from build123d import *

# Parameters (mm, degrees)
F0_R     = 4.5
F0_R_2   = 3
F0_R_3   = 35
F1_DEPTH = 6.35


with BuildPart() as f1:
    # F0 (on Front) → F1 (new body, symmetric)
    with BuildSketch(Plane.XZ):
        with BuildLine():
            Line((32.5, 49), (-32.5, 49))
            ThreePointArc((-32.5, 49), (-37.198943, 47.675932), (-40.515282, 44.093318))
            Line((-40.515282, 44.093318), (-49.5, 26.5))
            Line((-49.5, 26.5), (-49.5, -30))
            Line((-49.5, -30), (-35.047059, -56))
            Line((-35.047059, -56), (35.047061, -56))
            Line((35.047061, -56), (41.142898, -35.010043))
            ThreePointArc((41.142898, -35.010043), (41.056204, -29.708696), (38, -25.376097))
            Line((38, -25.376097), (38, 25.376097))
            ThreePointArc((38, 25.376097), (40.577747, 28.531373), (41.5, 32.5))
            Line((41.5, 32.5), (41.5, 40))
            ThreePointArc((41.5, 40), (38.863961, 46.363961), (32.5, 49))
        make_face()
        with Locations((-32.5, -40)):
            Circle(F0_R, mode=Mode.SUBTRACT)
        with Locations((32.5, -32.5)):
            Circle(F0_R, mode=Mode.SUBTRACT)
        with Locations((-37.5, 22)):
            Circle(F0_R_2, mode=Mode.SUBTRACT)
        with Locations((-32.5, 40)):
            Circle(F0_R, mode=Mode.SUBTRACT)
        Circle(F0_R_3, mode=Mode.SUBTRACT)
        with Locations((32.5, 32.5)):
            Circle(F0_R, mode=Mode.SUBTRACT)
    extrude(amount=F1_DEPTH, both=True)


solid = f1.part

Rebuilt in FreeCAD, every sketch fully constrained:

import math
import FreeCAD as App
import Part
import Sketcher

V = App.Vector

doc = App.newDocument("Part")
body = doc.addObject("PartDesign::Body", "Body")

# Sketch on XZ plane
sketch1 = body.newObject("Sketcher::SketchObject", "Sketch")
sketch1.AttachmentSupport = (doc.getObject("XZ_Plane"), [""])
sketch1.MapMode = "FlatFace"
sketch1.addGeometry([
    Part.LineSegment(V(32.5, 49, 0), V(-32.5, 49, 0)),  # 0
    Part.ArcOfCircle(Part.Circle(V(-32.5, 40, 0), V(0, 0, 1), 9), math.radians(90), math.radians(153)),  # 1
    Part.LineSegment(V(-40.5, 44.1, 0), V(-49.5, 26.5, 0)),  # 2
    Part.LineSegment(V(-49.5, 26.5, 0), V(-49.5, -30, 0)),  # 3
    Part.LineSegment(V(-49.5, -30, 0), V(-35, -56, 0)),  # 4
    Part.LineSegment(V(-35, -56, 0), V(35, -56, 0)),  # 5
    Part.LineSegment(V(35, -56, 0), V(41.1, -35, 0)),  # 6
    Part.ArcOfCircle(Part.Circle(V(32.5, -32.5, 0), V(0, 0, 1), 9), math.radians(-16), math.radians(52)),  # 7
    Part.LineSegment(V(38, -25.4, 0), V(38, 25.4, 0)),  # 8
    Part.ArcOfCircle(Part.Circle(V(32.5, 32.5, 0), V(0, 0, 1), 9), math.radians(-52), math.radians(0)),  # 9
    Part.LineSegment(V(41.5, 32.5, 0), V(41.5, 40, 0)),  # 10
    Part.ArcOfCircle(Part.Circle(V(32.5, 40, 0), V(0, 0, 1), 9), math.radians(0), math.radians(90)),  # 11
    Part.Circle(V(-32.5, -40, 0), V(0, 0, 1), 4.5),  # 12
    Part.Circle(V(32.5, -32.5, 0), V(0, 0, 1), 4.5),  # 13
    Part.Circle(V(-37.5, 22, 0), V(0, 0, 1), 3),  # 14
    Part.Circle(V(-32.5, 40, 0), V(0, 0, 1), 4.5),  # 15
    Part.Circle(V(0, 0, 0), V(0, 0, 1), 35),  # 16
    Part.Circle(V(32.5, 32.5, 0), V(0, 0, 1), 4.5),  # 17
], False)
sketch1.addConstraint([
    Sketcher.Constraint("Tangent", 0, 2, 1, 1),
    Sketcher.Constraint("Tangent", 1, 2, 2, 1),
    Sketcher.Constraint("Coincident", 2, 2, 3, 1),
    Sketcher.Constraint("Coincident", 3, 2, 4, 1),
    Sketcher.Constraint("Coincident", 4, 2, 5, 1),
    Sketcher.Constraint("Coincident", 5, 2, 6, 1),
    Sketcher.Constraint("Tangent", 6, 2, 7, 1),
    Sketcher.Constraint("Coincident", 7, 2, 8, 1),
    Sketcher.Constraint("Coincident", 8, 2, 9, 1),
    Sketcher.Constraint("Tangent", 9, 2, 10, 1),
    Sketcher.Constraint("Tangent", 10, 2, 11, 1),
    Sketcher.Constraint("Tangent", 11, 2, 0, 1),
    Sketcher.Constraint("Horizontal", 0),
    Sketcher.Constraint("Vertical", 3),
    Sketcher.Constraint("Horizontal", 5),
    Sketcher.Constraint("Vertical", 8),
    Sketcher.Constraint("Vertical", 10),
    Sketcher.Constraint("Coincident", 16, 3, -1, 1),
    Sketcher.Constraint("Coincident", 13, 3, 7, 3),
    Sketcher.Constraint("Coincident", 15, 3, 1, 3),
    Sketcher.Constraint("Coincident", 17, 3, 9, 3),
    Sketcher.Constraint("Equal", 7, 9),
    Sketcher.Constraint("Equal", 9, 11),
    Sketcher.Constraint("Equal", 12, 13),
    Sketcher.Constraint("Equal", 13, 15),
    Sketcher.Constraint("Equal", 15, 17),
    Sketcher.Constraint("Symmetric", 11, 3, 12, 3, -1, 1),
    Sketcher.Constraint("Symmetric", 1, 3, 11, 3, -2),
    Sketcher.Constraint("Symmetric", 7, 3, 9, 3, -1),
    Sketcher.Constraint("Diameter", 12, 9.0),
    Sketcher.Constraint("Diameter", 14, 6.0),
    Sketcher.Constraint("Diameter", 16, 70.0),
    Sketcher.Constraint("Radius", 1, 9.0),
    Sketcher.Constraint("DistanceX", 0, 2, 0, 1, 65.0),
    Sketcher.Constraint("DistanceY", 3, 2, 3, 1, 56.5),
    Sketcher.Constraint("DistanceY", 10, 1, 10, 2, 7.5),
    Sketcher.Constraint("DistanceY", -1, 1, 1, 3, 40.0),
    Sketcher.Constraint("DistanceY", -1, 1, 14, 3, 22.0),
    Sketcher.Constraint("DistanceY", 3, 2, -1, 1, 30.0),
    Sketcher.Constraint("DistanceY", 4, 2, -1, 1, 56.0),
    Sketcher.Constraint("DistanceX", -1, 1, 7, 2, 38.0),
    Sketcher.Constraint("DistanceX", 14, 3, 1, 3, 5.0),
    Sketcher.Constraint("DistanceX", 2, 2, 14, 3, 12.0),
    Sketcher.Constraint("DistanceX", 5, 1, 5, 2, 70.09412),
    Sketcher.Constraint("DistanceX", -1, 1, 6, 2, 41.142898),
])
pad1 = body.newObject("PartDesign::Pad", "Pad")
pad1.Profile = sketch1
pad1.Length = 12.7
pad1.Midplane = True

doc.recompute()
